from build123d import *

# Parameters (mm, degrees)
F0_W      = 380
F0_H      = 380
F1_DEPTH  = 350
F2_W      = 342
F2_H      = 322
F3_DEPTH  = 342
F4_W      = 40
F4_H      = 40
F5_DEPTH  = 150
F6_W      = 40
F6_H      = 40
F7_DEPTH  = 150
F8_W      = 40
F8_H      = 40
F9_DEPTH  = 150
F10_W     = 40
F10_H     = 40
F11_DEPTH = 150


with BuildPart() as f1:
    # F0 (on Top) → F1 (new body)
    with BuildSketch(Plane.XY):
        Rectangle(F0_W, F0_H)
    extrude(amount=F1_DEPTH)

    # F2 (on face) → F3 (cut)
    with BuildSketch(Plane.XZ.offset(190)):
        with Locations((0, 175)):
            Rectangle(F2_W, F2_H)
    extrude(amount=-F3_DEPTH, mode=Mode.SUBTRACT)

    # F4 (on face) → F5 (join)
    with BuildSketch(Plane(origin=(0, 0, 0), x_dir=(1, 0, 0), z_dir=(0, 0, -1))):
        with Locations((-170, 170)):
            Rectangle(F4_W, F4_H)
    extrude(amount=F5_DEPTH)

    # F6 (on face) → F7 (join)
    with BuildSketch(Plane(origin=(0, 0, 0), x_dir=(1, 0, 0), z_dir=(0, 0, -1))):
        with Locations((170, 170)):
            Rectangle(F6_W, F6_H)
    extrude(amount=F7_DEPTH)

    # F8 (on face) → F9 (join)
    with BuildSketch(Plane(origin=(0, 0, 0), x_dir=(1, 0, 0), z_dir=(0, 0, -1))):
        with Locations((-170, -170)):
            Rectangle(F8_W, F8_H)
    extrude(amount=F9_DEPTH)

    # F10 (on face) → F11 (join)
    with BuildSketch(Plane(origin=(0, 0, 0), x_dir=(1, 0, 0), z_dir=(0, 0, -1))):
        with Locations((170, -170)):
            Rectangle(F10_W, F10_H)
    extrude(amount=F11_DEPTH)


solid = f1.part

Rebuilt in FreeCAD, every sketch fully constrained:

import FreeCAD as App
import Part
import Sketcher
from FreeCAD import Vector
Q = App.Units.Quantity


def add_polygon(sketch, points):
    """Adds a closed chain of lines whose ends are joined by coincident constraints."""
    first, n = sketch.GeometryCount, len(points)
    for a, b in zip(points, points[1:] + points[:1]):
        sketch.addGeometry(Part.LineSegment(App.Vector(*a, 0), App.Vector(*b, 0)), False)
    for i in range(n):
        sketch.addConstraint(Sketcher.Constraint("Coincident", first + i, 2, first + (i + 1) % n, 1))

doc = App.newDocument("Part")
params = doc.addObject("Spreadsheet::Sheet", "Params")
for row, (alias, value) in enumerate([
    ("sketch1_width", "380 mm"),
    ("pad1_length", "350 mm"),
    ("sketch2_width", "342 mm"),
    ("sketch2_height", "322 mm"),
    ("pocket1_length", "342 mm"),
    ("sketch3_width", "40 mm"),
    ("pad2_length", "150 mm"),
    ("sketch4_width", "40 mm"),
    ("pad3_length", "150 mm"),
    ("sketch5_width", "40 mm"),
    ("pad4_length", "150 mm"),
    ("sketch6_width", "40 mm"),
    ("pad5_length", "150 mm"),
], start=1):
    params.set(f"A{row}", alias)
    params.set(f"B{row}", "=" + value)
    params.setAlias(f"B{row}", alias)

body = doc.addObject("PartDesign::Body", "Body")

# Sketch on XY plane
sketch1 = doc.addObject("Sketcher::SketchObject", "Sketch")
body.addObject(sketch1)
sketch1.AttachmentSupport = (doc.XY_Plane, [""])
sketch1.MapMode = "FlatFace"
add_polygon(sketch1, [(-190, 190), (-190, -190), (190, -190), (190, 190)])  # lines 0-3
sketch1.addConstraint([
    Sketcher.Constraint("Vertical", 0),
    Sketcher.Constraint("Horizontal", 1),
    Sketcher.Constraint("Vertical", 2),
    Sketcher.Constraint("Horizontal", 3),
    Sketcher.Constraint("Symmetric", 0, 2, 2, 2, -1, 1),
    Sketcher.Constraint("Equal", 3, 0),
    Sketcher.Constraint("DistanceX", 1, 1, 1, 2, Q("380 mm")),
])
sketch1.setExpression("Constraints[10]", "Params.sketch1_width")
pad1 = doc.addObject("PartDesign::Pad", "Pad")
body.addObject(pad1)
pad1.Profile = sketch1
pad1.setExpression("Length", "Params.pad1_length")

# Sketch on XZ plane
sketch2 = doc.addObject("Sketcher::SketchObject", "Sketch001")
body.addObject(sketch2)
sketch2.AttachmentSupport = (doc.XZ_Plane, [""])
sketch2.MapMode = "FlatFace"
sketch2.AttachmentOffset = App.Placement(Vector(0, 0, 190), App.Rotation())
add_polygon(sketch2, [(-171, 336), (-171, 14), (171, 14), (171, 336)])  # lines 0-3
sketch2.addConstraint([
    Sketcher.Constraint("Vertical", 0),
    Sketcher.Constraint("Horizontal", 1),
    Sketcher.Constraint("Vertical", 2),
    Sketcher.Constraint("Horizontal", 3),
    Sketcher.Constraint("DistanceX", 1, 1, 1, 2, Q("342 mm")),
    Sketcher.Constraint("DistanceY", 0, 2, 0, 1, Q("322 mm")),
    Sketcher.Constraint("DistanceX", 0, 2, -1, 1, Q("171 mm")),
    Sketcher.Constraint("DistanceY", -1, 1, 0, 2, Q("14 mm")),
])
sketch2.setExpression("Constraints[8]", "Params.sketch2_width")
sketch2.setExpression("Constraints[9]", "Params.sketch2_height")
pocket1 = doc.addObject("PartDesign::Pocket", "Pocket")
body.addObject(pocket1)
pocket1.Profile = sketch2
pocket1.setExpression("Length", "Params.pocket1_length")

# Sketch on XY plane
sketch3 = doc.addObject("Sketcher::SketchObject", "Sketch002")
body.addObject(sketch3)
sketch3.AttachmentSupport = (doc.XY_Plane, [""])
sketch3.MapMode = "FlatFace"
add_polygon(sketch3, [(-190, -190), (-190, -150), (-150, -150), (-150, -190)])  # lines 0-3
sketch3.addConstraint([
    Sketcher.Constraint("Vertical", 0),
    Sketcher.Constraint("Horizontal", 1),
    Sketcher.Constraint("Vertical", 2),
    Sketcher.Constraint("Horizontal", 3),
    Sketcher.Constraint("Equal", 3, 0),
    Sketcher.Constraint("DistanceX", 1, 1, 1, 2, Q("40 mm")),
    Sketcher.Constraint("DistanceX", 0, 2, -1, 1, Q("190 mm")),
    Sketcher.Constraint("DistanceY", 0, 2, -1, 1, Q("150 mm")),
])
sketch3.setExpression("Constraints[9]", "Params.sketch3_width")
pad2 = doc.addObject("PartDesign::Pad", "Pad001")
body.addObject(pad2)
pad2.Profile = sketch3
pad2.setExpression("Length", "Params.pad2_length")
pad2.Reversed = True

# Sketch on XY plane
sketch4 = doc.addObject("Sketcher::SketchObject", "Sketch003")
body.addObject(sketch4)
sketch4.AttachmentSupport = (doc.XY_Plane, [""])
sketch4.MapMode = "FlatFace"
add_polygon(sketch4, [(150, -190), (150, -150), (190, -150), (190, -190)])  # lines 0-3
sketch4.addConstraint([
    Sketcher.Constraint("Vertical", 0),
    Sketcher.Constraint("Horizontal", 1),
    Sketcher.Constraint("Vertical", 2),
    Sketcher.Constraint("Horizontal", 3),
    Sketcher.Constraint("Equal", 3, 0),
    Sketcher.Constraint("DistanceX", 1, 1, 1, 2, Q("40 mm")),
    Sketcher.Constraint("DistanceX", -1, 1, 0, 2, Q("150 mm")),
    Sketcher.Constraint("DistanceY", 0, 2, -1, 1, Q("150 mm")),
])
sketch4.setExpression("Constraints[9]", "Params.sketch4_width")
pad3 = doc.addObject("PartDesign::Pad", "Pad002")
body.addObject(pad3)
pad3.Profile = sketch4
pad3.setExpression("Length", "Params.pad3_length")
pad3.Reversed = True

# Sketch on XY plane
sketch5 = doc.addObject("Sketcher::SketchObject", "Sketch004")
body.addObject(sketch5)
sketch5.AttachmentSupport = (doc.XY_Plane, [""])
sketch5.MapMode = "FlatFace"
add_polygon(sketch5, [(-190, 150), (-190, 190), (-150, 190), (-150, 150)])  # lines 0-3
sketch5.addConstraint([
    Sketcher.Constraint("Vertical", 0),
    Sketcher.Constraint("Horizontal", 1),
    Sketcher.Constraint("Vertical", 2),
    Sketcher.Constraint("Horizontal", 3),
    Sketcher.Constraint("Equal", 3, 0),
    Sketcher.Constraint("DistanceX", 1, 1, 1, 2, Q("40 mm")),
    Sketcher.Constraint("DistanceX", 0, 2, -1, 1, Q("190 mm")),
    Sketcher.Constraint("DistanceY", -1, 1, 0, 2, Q("190 mm")),
])
sketch5.setExpression("Constraints[9]", "Params.sketch5_width")
pad4 = doc.addObject("PartDesign::Pad", "Pad003")
body.addObject(pad4)
pad4.Profile = sketch5
pad4.setExpression("Length", "Params.pad4_length")
pad4.Reversed = True

# Sketch on XY plane
sketch6 = doc.addObject("Sketcher::SketchObject", "Sketch005")
body.addObject(sketch6)
sketch6.AttachmentSupport = (doc.XY_Plane, [""])
sketch6.MapMode = "FlatFace"
add_polygon(sketch6, [(150, 150), (150, 190), (190, 190), (190, 150)])  # lines 0-3
sketch6.addConstraint([
    Sketcher.Constraint("Vertical", 0),
    Sketcher.Constraint("Horizontal", 1),
    Sketcher.Constraint("Vertical", 2),
    Sketcher.Constraint("Horizontal", 3),
    Sketcher.Constraint("Equal", 3, 0),
    Sketcher.Constraint("DistanceX", 1, 1, 1, 2, Q("40 mm")),
    Sketcher.Constraint("DistanceX", -1, 1, 0, 2, Q("150 mm")),
    Sketcher.Constraint("DistanceY", -1, 1, 0, 2, Q("190 mm")),
])
sketch6.setExpression("Constraints[9]", "Params.sketch6_width")
pad5 = doc.addObject("PartDesign::Pad", "Pad004")
body.addObject(pad5)
pad5.Profile = sketch6
pad5.setExpression("Length", "Params.pad5_length")
pad5.Reversed = True

doc.recompute()
